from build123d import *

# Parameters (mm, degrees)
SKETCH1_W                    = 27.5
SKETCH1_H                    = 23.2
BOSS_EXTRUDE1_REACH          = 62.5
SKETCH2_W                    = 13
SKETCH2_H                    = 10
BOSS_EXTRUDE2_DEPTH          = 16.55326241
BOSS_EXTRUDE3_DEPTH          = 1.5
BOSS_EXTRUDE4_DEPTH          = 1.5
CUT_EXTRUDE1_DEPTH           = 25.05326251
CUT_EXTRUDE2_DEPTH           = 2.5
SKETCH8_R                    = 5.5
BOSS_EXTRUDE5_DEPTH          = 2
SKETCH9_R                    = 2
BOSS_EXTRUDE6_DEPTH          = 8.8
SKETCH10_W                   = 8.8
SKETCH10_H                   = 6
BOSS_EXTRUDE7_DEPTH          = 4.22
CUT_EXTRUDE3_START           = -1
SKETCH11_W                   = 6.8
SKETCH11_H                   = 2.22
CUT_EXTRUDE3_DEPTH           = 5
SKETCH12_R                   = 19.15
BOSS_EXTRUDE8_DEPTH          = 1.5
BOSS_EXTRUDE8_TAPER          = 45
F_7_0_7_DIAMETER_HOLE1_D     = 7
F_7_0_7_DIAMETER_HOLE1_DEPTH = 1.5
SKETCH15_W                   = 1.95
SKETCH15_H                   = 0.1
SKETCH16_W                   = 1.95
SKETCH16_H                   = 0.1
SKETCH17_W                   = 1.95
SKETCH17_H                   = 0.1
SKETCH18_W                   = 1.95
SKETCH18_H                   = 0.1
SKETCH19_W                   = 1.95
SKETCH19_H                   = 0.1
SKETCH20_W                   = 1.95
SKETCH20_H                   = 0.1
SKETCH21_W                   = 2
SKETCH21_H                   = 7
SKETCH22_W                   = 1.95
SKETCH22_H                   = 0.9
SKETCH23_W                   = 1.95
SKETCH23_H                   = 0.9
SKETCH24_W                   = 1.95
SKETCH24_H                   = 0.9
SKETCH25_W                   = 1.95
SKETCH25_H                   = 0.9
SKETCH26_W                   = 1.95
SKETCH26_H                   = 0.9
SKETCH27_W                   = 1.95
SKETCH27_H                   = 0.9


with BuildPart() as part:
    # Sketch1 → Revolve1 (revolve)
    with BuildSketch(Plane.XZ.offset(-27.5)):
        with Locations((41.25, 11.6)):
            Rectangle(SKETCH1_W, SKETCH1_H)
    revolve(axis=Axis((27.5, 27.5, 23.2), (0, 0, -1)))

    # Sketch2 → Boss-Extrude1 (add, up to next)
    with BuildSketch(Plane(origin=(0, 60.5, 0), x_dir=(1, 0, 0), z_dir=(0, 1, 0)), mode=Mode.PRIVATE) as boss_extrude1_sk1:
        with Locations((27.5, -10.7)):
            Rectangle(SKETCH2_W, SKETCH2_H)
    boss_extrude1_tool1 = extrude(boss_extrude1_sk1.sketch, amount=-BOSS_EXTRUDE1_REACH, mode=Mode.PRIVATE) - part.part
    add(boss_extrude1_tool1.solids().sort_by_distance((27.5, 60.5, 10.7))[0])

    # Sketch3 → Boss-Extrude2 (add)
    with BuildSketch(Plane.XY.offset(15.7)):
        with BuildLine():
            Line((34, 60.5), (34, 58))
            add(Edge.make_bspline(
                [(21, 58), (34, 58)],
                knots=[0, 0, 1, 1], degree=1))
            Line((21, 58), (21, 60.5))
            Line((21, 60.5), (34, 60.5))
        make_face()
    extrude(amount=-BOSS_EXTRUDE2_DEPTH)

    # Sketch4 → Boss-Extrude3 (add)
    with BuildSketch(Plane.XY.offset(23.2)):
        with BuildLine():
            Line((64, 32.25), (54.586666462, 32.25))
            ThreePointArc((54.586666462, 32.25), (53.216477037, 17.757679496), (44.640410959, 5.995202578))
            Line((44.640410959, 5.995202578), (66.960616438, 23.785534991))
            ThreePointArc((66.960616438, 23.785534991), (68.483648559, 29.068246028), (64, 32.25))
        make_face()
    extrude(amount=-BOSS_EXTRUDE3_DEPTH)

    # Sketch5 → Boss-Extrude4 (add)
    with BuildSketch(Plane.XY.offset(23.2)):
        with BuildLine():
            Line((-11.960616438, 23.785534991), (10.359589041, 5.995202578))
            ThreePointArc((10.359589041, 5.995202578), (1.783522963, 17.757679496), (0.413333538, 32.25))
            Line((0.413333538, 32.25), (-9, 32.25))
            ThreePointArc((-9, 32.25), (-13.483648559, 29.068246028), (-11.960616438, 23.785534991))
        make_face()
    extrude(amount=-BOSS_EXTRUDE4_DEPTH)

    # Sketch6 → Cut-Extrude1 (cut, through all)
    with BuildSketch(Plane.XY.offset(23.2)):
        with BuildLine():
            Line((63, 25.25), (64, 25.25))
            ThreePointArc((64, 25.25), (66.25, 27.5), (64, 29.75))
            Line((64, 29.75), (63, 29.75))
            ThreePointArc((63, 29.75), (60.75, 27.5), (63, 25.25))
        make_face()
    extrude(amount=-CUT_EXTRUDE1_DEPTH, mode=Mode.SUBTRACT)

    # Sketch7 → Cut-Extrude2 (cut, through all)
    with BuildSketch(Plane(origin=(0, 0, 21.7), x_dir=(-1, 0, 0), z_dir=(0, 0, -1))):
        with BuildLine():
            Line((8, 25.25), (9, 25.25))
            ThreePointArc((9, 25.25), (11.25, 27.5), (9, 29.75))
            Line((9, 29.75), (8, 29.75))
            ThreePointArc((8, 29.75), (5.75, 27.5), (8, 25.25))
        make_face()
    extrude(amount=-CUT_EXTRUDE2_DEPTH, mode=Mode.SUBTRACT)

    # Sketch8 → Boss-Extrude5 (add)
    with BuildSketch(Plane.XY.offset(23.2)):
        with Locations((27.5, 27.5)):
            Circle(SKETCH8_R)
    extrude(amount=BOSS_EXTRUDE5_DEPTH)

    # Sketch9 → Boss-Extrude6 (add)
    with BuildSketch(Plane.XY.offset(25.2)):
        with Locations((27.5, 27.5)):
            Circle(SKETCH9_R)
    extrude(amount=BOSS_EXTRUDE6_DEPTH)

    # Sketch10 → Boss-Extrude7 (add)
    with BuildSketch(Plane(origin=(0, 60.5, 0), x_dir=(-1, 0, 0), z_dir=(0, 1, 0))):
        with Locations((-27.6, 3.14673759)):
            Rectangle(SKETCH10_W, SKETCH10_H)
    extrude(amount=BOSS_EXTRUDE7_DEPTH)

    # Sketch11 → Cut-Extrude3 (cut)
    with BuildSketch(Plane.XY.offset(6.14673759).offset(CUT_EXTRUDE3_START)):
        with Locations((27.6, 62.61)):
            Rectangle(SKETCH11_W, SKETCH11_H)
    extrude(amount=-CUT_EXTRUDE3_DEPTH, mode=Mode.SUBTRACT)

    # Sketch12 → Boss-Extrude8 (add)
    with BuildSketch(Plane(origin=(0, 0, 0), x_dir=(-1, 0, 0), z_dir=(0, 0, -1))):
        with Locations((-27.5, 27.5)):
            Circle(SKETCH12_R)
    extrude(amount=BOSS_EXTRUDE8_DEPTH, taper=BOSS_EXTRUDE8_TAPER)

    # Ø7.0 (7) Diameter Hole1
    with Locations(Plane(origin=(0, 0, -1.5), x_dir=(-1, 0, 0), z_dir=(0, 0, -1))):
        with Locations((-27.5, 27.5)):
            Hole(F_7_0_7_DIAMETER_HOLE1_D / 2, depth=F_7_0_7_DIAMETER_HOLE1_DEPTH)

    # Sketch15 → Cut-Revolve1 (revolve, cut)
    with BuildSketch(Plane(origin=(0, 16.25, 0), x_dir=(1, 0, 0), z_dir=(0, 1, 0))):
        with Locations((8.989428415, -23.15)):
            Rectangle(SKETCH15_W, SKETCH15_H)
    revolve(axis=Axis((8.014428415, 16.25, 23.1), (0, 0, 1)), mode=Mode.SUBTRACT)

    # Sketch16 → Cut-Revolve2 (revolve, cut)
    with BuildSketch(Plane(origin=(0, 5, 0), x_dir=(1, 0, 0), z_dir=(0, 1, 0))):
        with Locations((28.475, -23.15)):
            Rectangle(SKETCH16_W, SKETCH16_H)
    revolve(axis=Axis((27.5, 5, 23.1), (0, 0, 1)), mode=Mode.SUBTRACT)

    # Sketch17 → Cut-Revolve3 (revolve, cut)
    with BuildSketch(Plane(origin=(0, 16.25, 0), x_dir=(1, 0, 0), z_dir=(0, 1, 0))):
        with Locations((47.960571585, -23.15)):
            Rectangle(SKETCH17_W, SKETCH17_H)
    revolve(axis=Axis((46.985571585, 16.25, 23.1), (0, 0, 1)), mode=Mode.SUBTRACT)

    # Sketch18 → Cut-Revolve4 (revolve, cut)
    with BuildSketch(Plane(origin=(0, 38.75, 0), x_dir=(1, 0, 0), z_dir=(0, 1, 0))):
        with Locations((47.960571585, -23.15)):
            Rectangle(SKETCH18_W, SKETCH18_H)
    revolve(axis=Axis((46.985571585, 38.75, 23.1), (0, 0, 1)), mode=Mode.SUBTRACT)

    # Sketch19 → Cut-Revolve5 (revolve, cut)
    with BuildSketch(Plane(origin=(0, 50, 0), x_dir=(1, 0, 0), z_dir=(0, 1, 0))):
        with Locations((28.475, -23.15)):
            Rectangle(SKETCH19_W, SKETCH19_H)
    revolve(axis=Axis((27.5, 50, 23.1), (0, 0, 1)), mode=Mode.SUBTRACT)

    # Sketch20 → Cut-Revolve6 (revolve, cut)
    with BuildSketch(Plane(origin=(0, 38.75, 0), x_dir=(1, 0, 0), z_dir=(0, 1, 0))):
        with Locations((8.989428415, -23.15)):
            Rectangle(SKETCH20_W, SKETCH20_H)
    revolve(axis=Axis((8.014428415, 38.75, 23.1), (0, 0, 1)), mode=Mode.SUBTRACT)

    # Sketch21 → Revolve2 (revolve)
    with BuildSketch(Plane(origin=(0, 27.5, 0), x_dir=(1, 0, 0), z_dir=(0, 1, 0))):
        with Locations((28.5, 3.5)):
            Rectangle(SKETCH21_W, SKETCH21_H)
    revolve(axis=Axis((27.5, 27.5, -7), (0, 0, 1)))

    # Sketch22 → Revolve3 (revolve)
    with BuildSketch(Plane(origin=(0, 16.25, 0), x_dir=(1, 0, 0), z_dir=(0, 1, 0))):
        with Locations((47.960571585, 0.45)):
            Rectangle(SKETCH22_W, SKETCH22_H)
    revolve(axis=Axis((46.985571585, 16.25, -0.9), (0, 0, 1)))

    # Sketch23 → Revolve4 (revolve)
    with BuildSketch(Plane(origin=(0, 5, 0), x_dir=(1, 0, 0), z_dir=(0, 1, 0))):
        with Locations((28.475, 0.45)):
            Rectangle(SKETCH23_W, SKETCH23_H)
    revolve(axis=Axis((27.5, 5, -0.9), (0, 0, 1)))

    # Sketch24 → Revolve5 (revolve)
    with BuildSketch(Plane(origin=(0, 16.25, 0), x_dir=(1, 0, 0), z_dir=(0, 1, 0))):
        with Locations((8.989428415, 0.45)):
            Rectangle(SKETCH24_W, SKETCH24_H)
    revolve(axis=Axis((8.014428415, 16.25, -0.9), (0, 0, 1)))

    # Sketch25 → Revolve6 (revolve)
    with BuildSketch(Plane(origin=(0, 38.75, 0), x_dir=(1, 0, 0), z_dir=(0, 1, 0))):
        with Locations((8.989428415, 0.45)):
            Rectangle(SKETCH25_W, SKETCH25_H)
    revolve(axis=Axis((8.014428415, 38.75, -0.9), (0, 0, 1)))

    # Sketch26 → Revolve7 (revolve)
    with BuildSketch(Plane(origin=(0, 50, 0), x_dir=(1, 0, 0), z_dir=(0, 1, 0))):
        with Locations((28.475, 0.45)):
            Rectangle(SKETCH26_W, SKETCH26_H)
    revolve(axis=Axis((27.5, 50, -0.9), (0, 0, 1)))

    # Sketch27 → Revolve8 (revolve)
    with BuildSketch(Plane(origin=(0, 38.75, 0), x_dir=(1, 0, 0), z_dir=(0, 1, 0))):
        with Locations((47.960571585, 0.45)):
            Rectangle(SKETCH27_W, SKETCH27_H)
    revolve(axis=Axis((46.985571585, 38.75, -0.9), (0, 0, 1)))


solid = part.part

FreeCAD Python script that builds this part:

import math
import FreeCAD as App
import Part
import Sketcher
Q = App.Units.Quantity

doc = App.newDocument("Part")
body = doc.addObject("PartDesign::Body", "Body")

sketch1 = body.newObject("Sketcher::SketchObject", "Sketch")
sketch1.AttachmentSupport = (doc.getObject("XZ_Plane"), [""])
sketch1.MapMode = "FlatFace"
sketch1.AttachmentOffset = App.Placement(App.Vector(0, 0, -27.5), App.Rotation())
sketch1.addGeometry(Part.LineSegment(App.Vector(28, 23, 0), App.Vector(28, 0, 0)), False)
sketch1.addGeometry(Part.LineSegment(App.Vector(28, 0, 0), App.Vector(55, 0, 0)), False)
sketch1.addGeometry(Part.LineSegment(App.Vector(55, 0, 0), App.Vector(55, 23, 0)), False)
sketch1.addGeometry(Part.LineSegment(App.Vector(55, 23, 0), App.Vector(28, 23, 0)), False)
sketch1.addGeometry(Part.LineSegment(App.Vector(28, 23, 0), App.Vector(28, 0, 0)), True)
sketch1.addConstraint(Sketcher.Constraint("Coincident", 0, 2, 1, 1))
sketch1.addConstraint(Sketcher.Constraint("Coincident", 1, 2, 2, 1))
sketch1.addConstraint(Sketcher.Constraint("Coincident", 2, 2, 3, 1))
sketch1.addConstraint(Sketcher.Constraint("Coincident", 3, 2, 0, 1))
sketch1.addConstraint(Sketcher.Constraint("Vertical", 0))
sketch1.addConstraint(Sketcher.Constraint("Horizontal", 1))
sketch1.addConstraint(Sketcher.Constraint("Vertical", 2))
sketch1.addConstraint(Sketcher.Constraint("Horizontal", 3))
sketch1.addConstraint(Sketcher.Constraint("Vertical", 4))
sketch1.addConstraint(Sketcher.Constraint("Coincident", 4, 1, 3, 2))
sketch1.addConstraint(Sketcher.Constraint("PointOnObject", 0, 2, -1))
sketch1.addConstraint(Sketcher.Constraint("PointOnObject", 4, 2, -1))
sketch1.addConstraint(Sketcher.Constraint("DistanceX", 1, 1, 1, 2, Q("27.5 mm")))
sketch1.addConstraint(Sketcher.Constraint("DistanceY", 0, 2, 0, 1, Q("23.2 mm")))
sketch1.addConstraint(Sketcher.Constraint("DistanceX", -1, 1, 1, 2, Q("55 mm")))
revolution = body.newObject("PartDesign::Revolution", "Revolution")
revolution.Profile = sketch1
revolution.ReferenceAxis = (sketch1, ["Axis0"])
revolution.Angle = 360

sketch2 = body.newObject("Sketcher::SketchObject", "Sketch001")
sketch2.AttachmentSupport = (doc.getObject("XZ_Plane"), [""])
sketch2.MapMode = "FlatFace"
sketch2.AttachmentOffset = App.Placement(App.Vector(0, 0, -60.5), App.Rotation())
sketch2.addGeometry(Part.LineSegment(App.Vector(21, 6, 0), App.Vector(21, 16, 0)), False)
sketch2.addGeometry(Part.LineSegment(App.Vector(21, 16, 0), App.Vector(34, 16, 0)), False)
sketch2.addGeometry(Part.LineSegment(App.Vector(34, 16, 0), App.Vector(34, 6, 0)), False)
sketch2.addGeometry(Part.LineSegment(App.Vector(34, 6, 0), App.Vector(21, 6, 0)), False)
sketch2.addConstraint(Sketcher.Constraint("Coincident", 0, 2, 1, 1))
sketch2.addConstraint(Sketcher.Constraint("Coincident", 1, 2, 2, 1))
sketch2.addConstraint(Sketcher.Constraint("Coincident", 2, 2, 3, 1))
sketch2.addConstraint(Sketcher.Constraint("Coincident", 3, 2, 0, 1))
sketch2.addConstraint(Sketcher.Constraint("Vertical", 0))
sketch2.addConstraint(Sketcher.Constraint("Horizontal", 1))
sketch2.addConstraint(Sketcher.Constraint("Vertical", 2))
sketch2.addConstraint(Sketcher.Constraint("Horizontal", 3))
sketch2.addConstraint(Sketcher.Constraint("DistanceX", 1, 1, 1, 2, Q("13 mm")))
sketch2.addConstraint(Sketcher.Constraint("DistanceY", 0, 1, 0, 2, Q("10 mm")))
sketch2.addConstraint(Sketcher.Constraint("DistanceX", -1, 1, 0, 2, Q("21 mm")))
sketch2.addConstraint(Sketcher.Constraint("DistanceY", -1, 1, 0, 2, Q("15.7 mm")))
pad1 = body.newObject("PartDesign::Pad", "Pad")
pad1.Profile = sketch2
pad1.Type = "UpToFirst"

sketch3 = body.newObject("Sketcher::SketchObject", "Sketch002")
sketch3.AttachmentSupport = (doc.getObject("XY_Plane"), [""])
sketch3.MapMode = "FlatFace"
sketch3.AttachmentOffset = App.Placement(App.Vector(0, 0, 15.7), App.Rotation())
sketch3.addGeometry(Part.LineSegment(App.Vector(34, 58, 0), App.Vector(34, 60.5, 0)), False)
sketch3.addGeometry(Part.LineSegment(App.Vector(34, 60.5, 0), App.Vector(21, 60.5, 0)), False)
sketch3.addGeometry(Part.LineSegment(App.Vector(21, 60.5, 0), App.Vector(21, 58, 0)), False)
sketch3.addGeometry(Part.BSplineCurve([App.Vector(21, 58, 0), App.Vector(34, 58, 0)], [2, 2], [0, 1], False, 1, [1, 1], False), False)
sketch3.addConstraint(Sketcher.Constraint("Block", 3))
sketch3.addConstraint(Sketcher.Constraint("Coincident", 0, 2, 1, 1))
sketch3.addConstraint(Sketcher.Constraint("Coincident", 1, 2, 2, 1))
sketch3.addConstraint(Sketcher.Constraint("Coincident", 2, 2, 3, 1))
sketch3.addConstraint(Sketcher.Constraint("Coincident", 3, 2, 0, 1))
sketch3.addConstraint(Sketcher.Constraint("Vertical", 0))
sketch3.addConstraint(Sketcher.Constraint("Horizontal", 1))
sketch3.addConstraint(Sketcher.Constraint("Vertical", 2))
sketch3.addConstraint(Sketcher.Constraint("DistanceY", 0, 1, 0, 2, Q("2.5 mm")))
pad2 = body.newObject("PartDesign::Pad", "Pad001")
pad2.Profile = sketch3
pad2.Length = 16.553262
pad2.Reversed = True

sketch4 = body.newObject("Sketcher::SketchObject", "Sketch003")
sketch4.AttachmentSupport = (doc.getObject("XY_Plane"), [""])
sketch4.MapMode = "FlatFace"
sketch4.AttachmentOffset = App.Placement(App.Vector(0, 0, 23.2), App.Rotation())
sketch4.addGeometry(Part.LineSegment(App.Vector(64, 32.2, 0), App.Vector(54.6, 32.2, 0)), False)
sketch4.addGeometry(Part.ArcOfCircle(Part.Circle(App.Vector(27.5, 27.5, 0), App.Vector(0, 0, 1), 27.5), math.radians(-51), math.radians(10)), False)
sketch4.addGeometry(Part.LineSegment(App.Vector(44.6, 6, 0), App.Vector(67, 23.8, 0)), False)
sketch4.addGeometry(Part.ArcOfCircle(Part.Circle(App.Vector(64, 27.5, 0), App.Vector(0, 0, 1), 4.7), math.radians(-51), math.radians(90)), False)
sketch4.addConstraint(Sketcher.Constraint("Coincident", 0, 2, 1, 2))
sketch4.addConstraint(Sketcher.Constraint("Tangent", 1, 1, 2, 1))
sketch4.addConstraint(Sketcher.Constraint("Tangent", 2, 2, 3, 1))
sketch4.addConstraint(Sketcher.Constraint("Tangent", 3, 2, 0, 1))
sketch4.addConstraint(Sketcher.Constraint("Horizontal", 0))
sketch4.addConstraint(Sketcher.Constraint("Horizontal", 1, 3, 3, 3))
sketch4.addConstraint(Sketcher.Constraint("Radius", 1, Q("27.5 mm")))
sketch4.addConstraint(Sketcher.Constraint("Radius", 3, Q("4.75 mm")))
sketch4.addConstraint(Sketcher.Constraint("DistanceX", -1, 1, 3, 3, Q("64 mm")))
sketch4.addConstraint(Sketcher.Constraint("DistanceX", -1, 1, 1, 3, Q("27.5 mm")))
sketch4.addConstraint(Sketcher.Constraint("DistanceY", -1, 1, 1, 3, Q("27.5 mm")))
pad3 = body.newObject("PartDesign::Pad", "Pad002")
pad3.Profile = sketch4
pad3.Length = 1.5
pad3.Reversed = True

sketch5 = body.newObject("Sketcher::SketchObject", "Sketch004")
sketch5.AttachmentSupport = (doc.getObject("XY_Plane"), [""])
sketch5.MapMode = "FlatFace"
sketch5.AttachmentOffset = App.Placement(App.Vector(0, 0, 23.2), App.Rotation())
sketch5.addGeometry(Part.LineSegment(App.Vector(-12, 23.8, 0), App.Vector(10.4, 6, 0)), False)
sketch5.addGeometry(Part.ArcOfCircle(Part.Circle(App.Vector(27.5, 27.5, 0), App.Vector(0, 0, 1), 27.5), math.radians(170), math.radians(231)), False)
sketch5.addGeometry(Part.LineSegment(App.Vector(0.4, 32.2, 0), App.Vector(-9, 32.2, 0)), False)
sketch5.addGeometry(Part.ArcOfCircle(Part.Circle(App.Vector(-9, 27.5, 0), App.Vector(0, 0, 1), 4.7), math.radians(90), math.radians(231)), False)
sketch5.addConstraint(Sketcher.Constraint("Tangent", 0, 2, 1, 2))
sketch5.addConstraint(Sketcher.Constraint("Coincident", 1, 1, 2, 1))
sketch5.addConstraint(Sketcher.Constraint("Tangent", 2, 2, 3, 1))
sketch5.addConstraint(Sketcher.Constraint("Tangent", 3, 2, 0, 1))
sketch5.addConstraint(Sketcher.Constraint("Horizontal", 2))
sketch5.addConstraint(Sketcher.Constraint("Horizontal", 1, 3, 3, 3))
sketch5.addConstraint(Sketcher.Constraint("Radius", 1, Q("27.5 mm")))
sketch5.addConstraint(Sketcher.Constraint("Radius", 3, Q("4.75 mm")))
sketch5.addConstraint(Sketcher.Constraint("DistanceX", 3, 3, -1, 1, Q("9 mm")))
sketch5.addConstraint(Sketcher.Constraint("DistanceX", -1, 1, 1, 3, Q("27.5 mm")))
sketch5.addConstraint(Sketcher.Constraint("DistanceY", -1, 1, 1, 3, Q("27.5 mm")))
pad4 = body.newObject("PartDesign::Pad", "Pad003")
pad4.Profile = sketch5
pad4.Length = 1.5
pad4.Reversed = True

sketch6 = body.newObject("Sketcher::SketchObject", "Sketch005")
sketch6.AttachmentSupport = (doc.getObject("XY_Plane"), [""])
sketch6.MapMode = "FlatFace"
sketch6.AttachmentOffset = App.Placement(App.Vector(0, 0, 23.2), App.Rotation())
sketch6.addGeometry(Part.LineSegment(App.Vector(63, 25.2, 0), App.Vector(64, 25.2, 0)), False)
sketch6.addGeometry(Part.ArcOfCircle(Part.Circle(App.Vector(64, 27.5, 0), App.Vector(0, 0, 1), 2.2), math.radians(-90), math.radians(90)), False)
sketch6.addGeometry(Part.LineSegment(App.Vector(64, 29.8, 0), App.Vector(63, 29.8, 0)), False)
sketch6.addGeometry(Part.ArcOfCircle(Part.Circle(App.Vector(63, 27.5, 0), App.Vector(0, 0, 1), 2.2), math.radians(90), math.radians(270)), False)
sketch6.addConstraint(Sketcher.Constraint("Tangent", 0, 2, 1, 1))
sketch6.addConstraint(Sketcher.Constraint("Tangent", 1, 2, 2, 1))
sketch6.addConstraint(Sketcher.Constraint("Tangent", 2, 2, 3, 1))
sketch6.addConstraint(Sketcher.Constraint("Tangent", 3, 2, 0, 1))
sketch6.addConstraint(Sketcher.Constraint("Horizontal", 0))
sketch6.addConstraint(Sketcher.Constraint("Horizontal", 2))
sketch6.addConstraint(Sketcher.Constraint("DistanceX", 0, 1, 0, 2, Q("1 mm")))
sketch6.addConstraint(Sketcher.Constraint("Radius", 1, Q("2.25 mm")))
sketch6.addConstraint(Sketcher.Constraint("DistanceX", -1, 1, 1, 3, Q("64 mm")))
sketch6.addConstraint(Sketcher.Constraint("DistanceY", -1, 1, 1, 3, Q("27.5 mm")))
pocket1 = body.newObject("PartDesign::Pocket", "Pocket")
pocket1.Profile = sketch6
pocket1.Type = "ThroughAll"

sketch7 = body.newObject("Sketcher::SketchObject", "Sketch006")
sketch7.AttachmentSupport = (doc.getObject("XY_Plane"), [""])
sketch7.MapMode = "FlatFace"
sketch7.AttachmentOffset = App.Placement(App.Vector(0, 0, 21.7), App.Rotation())
sketch7.addGeometry(Part.LineSegment(App.Vector(-8, 25.2, 0), App.Vector(-9, 25.2, 0)), False)
sketch7.addGeometry(Part.ArcOfCircle(Part.Circle(App.Vector(-9, 27.5, 0), App.Vector(0, 0, 1), 2.2), math.radians(90), math.radians(270)), False)
sketch7.addGeometry(Part.LineSegment(App.Vector(-9, 29.8, 0), App.Vector(-8, 29.8, 0)), False)
sketch7.addGeometry(Part.ArcOfCircle(Part.Circle(App.Vector(-8, 27.5, 0), App.Vector(0, 0, 1), 2.2), math.radians(-90), math.radians(90)), False)
sketch7.addConstraint(Sketcher.Constraint("Tangent", 0, 2, 1, 2))
sketch7.addConstraint(Sketcher.Constraint("Tangent", 1, 1, 2, 1))
sketch7.addConstraint(Sketcher.Constraint("Tangent", 2, 2, 3, 2))
sketch7.addConstraint(Sketcher.Constraint("Tangent", 3, 1, 0, 1))
sketch7.addConstraint(Sketcher.Constraint("Horizontal", 0))
sketch7.addConstraint(Sketcher.Constraint("Horizontal", 2))
sketch7.addConstraint(Sketcher.Constraint("DistanceX", 0, 2, 0, 1, Q("1 mm")))
sketch7.addConstraint(Sketcher.Constraint("Radius", 1, Q("2.25 mm")))
sketch7.addConstraint(Sketcher.Constraint("DistanceX", 1, 3, -1, 1, Q("9 mm")))
sketch7.addConstraint(Sketcher.Constraint("DistanceY", -1, 1, 1, 3, Q("27.5 mm")))
pocket2 = body.newObject("PartDesign::Pocket", "Pocket001")
pocket2.Profile = sketch7
pocket2.Type = "ThroughAll"
pocket2.Reversed = True

sketch8 = body.newObject("Sketcher::SketchObject", "Sketch007")
sketch8.AttachmentSupport = (doc.getObject("XY_Plane"), [""])
sketch8.MapMode = "FlatFace"
sketch8.AttachmentOffset = App.Placement(App.Vector(0, 0, 23.2), App.Rotation())
sketch8.addGeometry(Part.Circle(App.Vector(28, 28, 0), App.Vector(0, 0, 1), 6), False)
sketch8.addConstraint(Sketcher.Constraint("Diameter", 0, Q("11 mm")))
sketch8.addConstraint(Sketcher.Constraint("DistanceX", -1, 1, 0, 3, Q("27.5 mm")))
sketch8.addConstraint(Sketcher.Constraint("DistanceY", -1, 1, 0, 3, Q("27.5 mm")))
pad5 = body.newObject("PartDesign::Pad", "Pad004")
pad5.Profile = sketch8
pad5.Length = 2

sketch9 = body.newObject("Sketcher::SketchObject", "Sketch008")
sketch9.AttachmentSupport = (doc.getObject("XY_Plane"), [""])
sketch9.MapMode = "FlatFace"
sketch9.AttachmentOffset = App.Placement(App.Vector(0, 0, 25.2), App.Rotation())
sketch9.addGeometry(Part.Circle(App.Vector(27.5, 27.5, 0), App.Vector(0, 0, 1), 2), False)
sketch9.addConstraint(Sketcher.Constraint("Diameter", 0, Q("4 mm")))
sketch9.addConstraint(Sketcher.Constraint("DistanceX", -1, 1, 0, 3, Q("27.5 mm")))
sketch9.addConstraint(Sketcher.Constraint("DistanceY", -1, 1, 0, 3, Q("27.5 mm")))
pad6 = body.newObject("PartDesign::Pad", "Pad005")
pad6.Profile = sketch9
pad6.Length = 8.8

sketch10 = body.newObject("Sketcher::SketchObject", "Sketch009")
sketch10.AttachmentSupport = (doc.getObject("XZ_Plane"), [""])
sketch10.MapMode = "FlatFace"
sketch10.AttachmentOffset = App.Placement(App.Vector(0, 0, -60.5), App.Rotation())
sketch10.addGeometry(Part.LineSegment(App.Vector(32, 6, 0), App.Vector(32, 0, 0)), False)
sketch10.addGeometry(Part.LineSegment(App.Vector(32, 0, 0), App.Vector(23, 0, 0)), False)
sketch10.addGeometry(Part.LineSegment(App.Vector(23, 0, 0), App.Vector(23, 6, 0)), False)
sketch10.addGeometry(Part.LineSegment(App.Vector(23, 6, 0), App.Vector(32, 6, 0)), False)
sketch10.addConstraint(Sketcher.Constraint("Coincident", 0, 2, 1, 1))
sketch10.addConstraint(Sketcher.Constraint("Coincident", 1, 2, 2, 1))
sketch10.addConstraint(Sketcher.Constraint("Coincident", 2, 2, 3, 1))
sketch10.addConstraint(Sketcher.Constraint("Coincident", 3, 2, 0, 1))
sketch10.addConstraint(Sketcher.Constraint("Vertical", 0))
sketch10.addConstraint(Sketcher.Constraint("Horizontal", 1))
sketch10.addConstraint(Sketcher.Constraint("Vertical", 2))
sketch10.addConstraint(Sketcher.Constraint("Horizontal", 3))
sketch10.addConstraint(Sketcher.Constraint("DistanceY", 0, 2, 0, 1, Q("6 mm")))
sketch10.addConstraint(Sketcher.Constraint("DistanceX", 1, 2, 1, 1, Q("8.8 mm")))
sketch10.addConstraint(Sketcher.Constraint("DistanceX", -1, 1, 0, 2, Q("32 mm")))
sketch10.addConstraint(Sketcher.Constraint("DistanceY", -1, 1, 0, 2, Q("0.146738 mm")))
pad7 = body.newObject("PartDesign::Pad", "Pad006")
pad7.Profile = sketch10
pad7.Length = 4.22
pad7.Reversed = True

sketch11 = body.newObject("Sketcher::SketchObject", "Sketch010")
sketch11.AttachmentSupport = (doc.getObject("XY_Plane"), [""])
sketch11.MapMode = "FlatFace"
sketch11.AttachmentOffset = App.Placement(App.Vector(0, 0, 5.146738), App.Rotation())
sketch11.addGeometry(Part.LineSegment(App.Vector(24.2, 63.7, 0), App.Vector(24.2, 61.5, 0)), False)
sketch11.addGeometry(Part.LineSegment(App.Vector(24.2, 61.5, 0), App.Vector(31, 61.5, 0)), False)
sketch11.addGeometry(Part.LineSegment(App.Vector(31, 61.5, 0), App.Vector(31, 63.7, 0)), False)
sketch11.addGeometry(Part.LineSegment(App.Vector(31, 63.7, 0), App.Vector(24.2, 63.7, 0)), False)
sketch11.addConstraint(Sketcher.Constraint("Coincident", 0, 2, 1, 1))
sketch11.addConstraint(Sketcher.Constraint("Coincident", 1, 2, 2, 1))
sketch11.addConstraint(Sketcher.Constraint("Coincident", 2, 2, 3, 1))
sketch11.addConstraint(Sketcher.Constraint("Coincident", 3, 2, 0, 1))
sketch11.addConstraint(Sketcher.Constraint("Vertical", 0))
sketch11.addConstraint(Sketcher.Constraint("Horizontal", 1))
sketch11.addConstraint(Sketcher.Constraint("Vertical", 2))
sketch11.addConstraint(Sketcher.Constraint("Horizontal", 3))
sketch11.addConstraint(Sketcher.Constraint("DistanceX", 1, 1, 1, 2, Q("6.8 mm")))
sketch11.addConstraint(Sketcher.Constraint("DistanceX", -1, 1, 1, 2, Q("31 mm")))
sketch11.addConstraint(Sketcher.Constraint("DistanceY", 0, 2, 0, 1, Q("2.22 mm")))
sketch11.addConstraint(Sketcher.Constraint("DistanceY", -1, 1, 0, 2, Q("61.5 mm")))
pocket3 = body.newObject("PartDesign::Pocket", "Pocket002")
pocket3.Profile = sketch11
pocket3.Length = 5

sketch12 = body.newObject("Sketcher::SketchObject", "Sketch011")
sketch12.AttachmentSupport = (doc.getObject("XY_Plane"), [""])
sketch12.MapMode = "FlatFace"
sketch12.addGeometry(Part.Circle(App.Vector(28, 28, 0), App.Vector(0, 0, 1), 19), False)
sketch12.addConstraint(Sketcher.Constraint("Diameter", 0, Q("38.3 mm")))
sketch12.addConstraint(Sketcher.Constraint("DistanceX", -1, 1, 0, 3, Q("27.5 mm")))
sketch12.addConstraint(Sketcher.Constraint("DistanceY", -1, 1, 0, 3, Q("27.5 mm")))
pad8 = body.newObject("PartDesign::Pad", "Pad007")
pad8.Profile = sketch12
pad8.Length = 1.5
pad8.Reversed = True
pad8.TaperAngle = -45

sketch13 = body.newObject("Sketcher::SketchObject", "Sketch012")
sketch13.AttachmentSupport = (doc.getObject("XY_Plane"), [""])
sketch13.MapMode = "FlatFace"
sketch13.AttachmentOffset = App.Placement(App.Vector(0, 0, -1.5), App.Rotation())
sketch13.addGeometry(Part.Circle(App.Vector(27.5, 27.5, 0), App.Vector(0, 0, 1), 3.5), False)
sketch13.addConstraint(Sketcher.Constraint("Diameter", 0, Q("7 mm")))
sketch13.addConstraint(Sketcher.Constraint("DistanceX", -1, 1, 0, 3, Q("27.5 mm")))
sketch13.addConstraint(Sketcher.Constraint("DistanceY", -1, 1, 0, 3, Q("27.5 mm")))
doc.recompute()
hole = body.newObject("PartDesign::Hole", "Hole")
hole.Profile = sketch13
hole.ThreadType = "None"
hole.Diameter = 7
hole.DepthType = "Dimension"
hole.Depth = 1.5
hole.DrillPoint = "Flat"
hole.Reversed = True

sketch14 = body.newObject("Sketcher::SketchObject", "Sketch013")
sketch14.AttachmentSupport = (doc.getObject("XZ_Plane"), [""])
sketch14.MapMode = "FlatFace"
sketch14.AttachmentOffset = App.Placement(App.Vector(0, 0, -16.25), App.Rotation())
sketch14.addGeometry(Part.LineSegment(App.Vector(8.01, 23.1, 0), App.Vector(8.01, 23.2, 0)), False)
sketch14.addGeometry(Part.LineSegment(App.Vector(8.01, 23.2, 0), App.Vector(9.96, 23.2, 0)), False)
sketch14.addGeometry(Part.LineSegment(App.Vector(9.96, 23.2, 0), App.Vector(9.96, 23.1, 0)), False)
sketch14.addGeometry(Part.LineSegment(App.Vector(9.96, 23.1, 0), App.Vector(8.01, 23.1, 0)), False)
sketch14.addGeometry(Part.LineSegment(App.Vector(8.01, 23.1, 0), App.Vector(8.01, 23.2, 0)), True)
sketch14.addConstraint(Sketcher.Constraint("Coincident", 0, 2, 1, 1))
sketch14.addConstraint(Sketcher.Constraint("Coincident", 1, 2, 2, 1))
sketch14.addConstraint(Sketcher.Constraint("Coincident", 2, 2, 3, 1))
sketch14.addConstraint(Sketcher.Constraint("Coincident", 3, 2, 0, 1))
sketch14.addConstraint(Sketcher.Constraint("Vertical", 0))
sketch14.addConstraint(Sketcher.Constraint("Horizontal", 1))
sketch14.addConstraint(Sketcher.Constraint("Vertical", 2))
sketch14.addConstraint(Sketcher.Constraint("Horizontal", 3))
sketch14.addConstraint(Sketcher.Constraint("Vertical", 4))
sketch14.addConstraint(Sketcher.Constraint("Coincident", 4, 1, 3, 2))
sketch14.addConstraint(Sketcher.Constraint("Horizontal", 1, 2, 4, 2))
sketch14.addConstraint(Sketcher.Constraint("DistanceY", 0, 1, 0, 2, Q("0.1 mm")))
sketch14.addConstraint(Sketcher.Constraint("DistanceX", 1, 1, 1, 2, Q("1.95 mm")))
sketch14.addConstraint(Sketcher.Constraint("DistanceY", -1, 1, 0, 2, Q("23.2 mm")))
sketch14.addConstraint(Sketcher.Constraint("DistanceX", -1, 1, 0, 2, Q("8.014428 mm")))
groove = body.newObject("PartDesign::Groove", "Groove")
groove.Profile = sketch14
groove.ReferenceAxis = (sketch14, ["Axis0"])
groove.Angle = 360

sketch15 = body.newObject("Sketcher::SketchObject", "Sketch014")
sketch15.AttachmentSupport = (doc.getObject("XZ_Plane"), [""])
sketch15.MapMode = "FlatFace"
sketch15.AttachmentOffset = App.Placement(App.Vector(0, 0, -5), App.Rotation())
sketch15.addGeometry(Part.LineSegment(App.Vector(27.5, 23.1, 0), App.Vector(27.5, 23.2, 0)), False)
sketch15.addGeometry(Part.LineSegment(App.Vector(27.5, 23.2, 0), App.Vector(29.45, 23.2, 0)), False)
sketch15.addGeometry(Part.LineSegment(App.Vector(29.45, 23.2, 0), App.Vector(29.45, 23.1, 0)), False)
sketch15.addGeometry(Part.LineSegment(App.Vector(29.45, 23.1, 0), App.Vector(27.5, 23.1, 0)), False)
sketch15.addGeometry(Part.LineSegment(App.Vector(27.5, 23.1, 0), App.Vector(27.5, 23.2, 0)), True)
sketch15.addConstraint(Sketcher.Constraint("Coincident", 0, 2, 1, 1))
sketch15.addConstraint(Sketcher.Constraint("Coincident", 1, 2, 2, 1))
sketch15.addConstraint(Sketcher.Constraint("Coincident", 2, 2, 3, 1))
sketch15.addConstraint(Sketcher.Constraint("Coincident", 3, 2, 0, 1))
sketch15.addConstraint(Sketcher.Constraint("Vertical", 0))
sketch15.addConstraint(Sketcher.Constraint("Horizontal", 1))
sketch15.addConstraint(Sketcher.Constraint("Vertical", 2))
sketch15.addConstraint(Sketcher.Constraint("Horizontal", 3))
sketch15.addConstraint(Sketcher.Constraint("Vertical", 4))
sketch15.addConstraint(Sketcher.Constraint("Coincident", 4, 1, 3, 2))
sketch15.addConstraint(Sketcher.Constraint("Horizontal", 1, 2, 4, 2))
sketch15.addConstraint(Sketcher.Constraint("DistanceY", 0, 1, 0, 2, Q("0.1 mm")))
sketch15.addConstraint(Sketcher.Constraint("DistanceX", 1, 1, 1, 2, Q("1.95 mm")))
sketch15.addConstraint(Sketcher.Constraint("DistanceX", -1, 1, 0, 2, Q("27.5 mm")))
sketch15.addConstraint(Sketcher.Constraint("DistanceY", -1, 1, 0, 2, Q("23.2 mm")))
groove2 = body.newObject("PartDesign::Groove", "Groove001")
groove2.Profile = sketch15
groove2.ReferenceAxis = (sketch15, ["Axis0"])
groove2.Angle = 360

sketch16 = body.newObject("Sketcher::SketchObject", "Sketch015")
sketch16.AttachmentSupport = (doc.getObject("XZ_Plane"), [""])
sketch16.MapMode = "FlatFace"
sketch16.AttachmentOffset = App.Placement(App.Vector(0, 0, -16.25), App.Rotation())
sketch16.addGeometry(Part.LineSegment(App.Vector(46.99, 23.1, 0), App.Vector(46.99, 23.2, 0)), False)
sketch16.addGeometry(Part.LineSegment(App.Vector(46.99, 23.2, 0), App.Vector(48.94, 23.2, 0)), False)
sketch16.addGeometry(Part.LineSegment(App.Vector(48.94, 23.2, 0), App.Vector(48.94, 23.1, 0)), False)
sketch16.addGeometry(Part.LineSegment(App.Vector(48.94, 23.1, 0), App.Vector(46.99, 23.1, 0)), False)
sketch16.addGeometry(Part.LineSegment(App.Vector(46.99, 23.1, 0), App.Vector(46.99, 23.2, 0)), True)
sketch16.addConstraint(Sketcher.Constraint("Coincident", 0, 2, 1, 1))
sketch16.addConstraint(Sketcher.Constraint("Coincident", 1, 2, 2, 1))
sketch16.addConstraint(Sketcher.Constraint("Coincident", 2, 2, 3, 1))
sketch16.addConstraint(Sketcher.Constraint("Coincident", 3, 2, 0, 1))
sketch16.addConstraint(Sketcher.Constraint("Vertical", 0))
sketch16.addConstraint(Sketcher.Constraint("Horizontal", 1))
sketch16.addConstraint(Sketcher.Constraint("Vertical", 2))
sketch16.addConstraint(Sketcher.Constraint("Horizontal", 3))
sketch16.addConstraint(Sketcher.Constraint("Vertical", 4))
sketch16.addConstraint(Sketcher.Constraint("Coincident", 4, 1, 3, 2))
sketch16.addConstraint(Sketcher.Constraint("Horizontal", 1, 2, 4, 2))
sketch16.addConstraint(Sketcher.Constraint("DistanceY", 0, 1, 0, 2, Q("0.1 mm")))
sketch16.addConstraint(Sketcher.Constraint("DistanceX", 1, 1, 1, 2, Q("1.95 mm")))
sketch16.addConstraint(Sketcher.Constraint("DistanceY", -1, 1, 0, 2, Q("23.2 mm")))
sketch16.addConstraint(Sketcher.Constraint("DistanceX", -1, 1, 0, 2, Q("46.985572 mm")))
groove3 = body.newObject("PartDesign::Groove", "Groove002")
groove3.Profile = sketch16
groove3.ReferenceAxis = (sketch16, ["Axis0"])
groove3.Angle = 360

sketch17 = body.newObject("Sketcher::SketchObject", "Sketch016")
sketch17.AttachmentSupport = (doc.getObject("XZ_Plane"), [""])
sketch17.MapMode = "FlatFace"
sketch17.AttachmentOffset = App.Placement(App.Vector(0, 0, -38.75), App.Rotation())
sketch17.addGeometry(Part.LineSegment(App.Vector(46.99, 23.1, 0), App.Vector(46.99, 23.2, 0)), False)
sketch17.addGeometry(Part.LineSegment(App.Vector(46.99, 23.2, 0), App.Vector(48.94, 23.2, 0)), False)
sketch17.addGeometry(Part.LineSegment(App.Vector(48.94, 23.2, 0), App.Vector(48.94, 23.1, 0)), False)
sketch17.addGeometry(Part.LineSegment(App.Vector(48.94, 23.1, 0), App.Vector(46.99, 23.1, 0)), False)
sketch17.addGeometry(Part.LineSegment(App.Vector(46.99, 23.1, 0), App.Vector(46.99, 23.2, 0)), True)
sketch17.addConstraint(Sketcher.Constraint("Coincident", 0, 2, 1, 1))
sketch17.addConstraint(Sketcher.Constraint("Coincident", 1, 2, 2, 1))
sketch17.addConstraint(Sketcher.Constraint("Coincident", 2, 2, 3, 1))
sketch17.addConstraint(Sketcher.Constraint("Coincident", 3, 2, 0, 1))
sketch17.addConstraint(Sketcher.Constraint("Vertical", 0))
sketch17.addConstraint(Sketcher.Constraint("Horizontal", 1))
sketch17.addConstraint(Sketcher.Constraint("Vertical", 2))
sketch17.addConstraint(Sketcher.Constraint("Horizontal", 3))
sketch17.addConstraint(Sketcher.Constraint("Vertical", 4))
sketch17.addConstraint(Sketcher.Constraint("Coincident", 4, 1, 3, 2))
sketch17.addConstraint(Sketcher.Constraint("Horizontal", 1, 2, 4, 2))
sketch17.addConstraint(Sketcher.Constraint("DistanceY", 0, 1, 0, 2, Q("0.1 mm")))
sketch17.addConstraint(Sketcher.Constraint("DistanceX", 1, 1, 1, 2, Q("1.95 mm")))
sketch17.addConstraint(Sketcher.Constraint("DistanceY", -1, 1, 0, 2, Q("23.2 mm")))
sketch17.addConstraint(Sketcher.Constraint("DistanceX", -1, 1, 0, 2, Q("46.985572 mm")))
groove4 = body.newObject("PartDesign::Groove", "Groove003")
groove4.Profile = sketch17
groove4.ReferenceAxis = (sketch17, ["Axis0"])
groove4.Angle = 360

sketch18 = body.newObject("Sketcher::SketchObject", "Sketch017")
sketch18.AttachmentSupport = (doc.getObject("XZ_Plane"), [""])
sketch18.MapMode = "FlatFace"
sketch18.AttachmentOffset = App.Placement(App.Vector(0, 0, -50), App.Rotation())
sketch18.addGeometry(Part.LineSegment(App.Vector(27.5, 23.1, 0), App.Vector(27.5, 23.2, 0)), False)
sketch18.addGeometry(Part.LineSegment(App.Vector(27.5, 23.2, 0), App.Vector(29.45, 23.2, 0)), False)
sketch18.addGeometry(Part.LineSegment(App.Vector(29.45, 23.2, 0), App.Vector(29.45, 23.1, 0)), False)
sketch18.addGeometry(Part.LineSegment(App.Vector(29.45, 23.1, 0), App.Vector(27.5, 23.1, 0)), False)
sketch18.addGeometry(Part.LineSegment(App.Vector(27.5, 23.1, 0), App.Vector(27.5, 23.2, 0)), True)
sketch18.addConstraint(Sketcher.Constraint("Coincident", 0, 2, 1, 1))
sketch18.addConstraint(Sketcher.Constraint("Coincident", 1, 2, 2, 1))
sketch18.addConstraint(Sketcher.Constraint("Coincident", 2, 2, 3, 1))
sketch18.addConstraint(Sketcher.Constraint("Coincident", 3, 2, 0, 1))
sketch18.addConstraint(Sketcher.Constraint("Vertical", 0))
sketch18.addConstraint(Sketcher.Constraint("Horizontal", 1))
sketch18.addConstraint(Sketcher.Constraint("Vertical", 2))
sketch18.addConstraint(Sketcher.Constraint("Horizontal", 3))
sketch18.addConstraint(Sketcher.Constraint("Vertical", 4))
sketch18.addConstraint(Sketcher.Constraint("Coincident", 4, 1, 3, 2))
sketch18.addConstraint(Sketcher.Constraint("Horizontal", 1, 2, 4, 2))
sketch18.addConstraint(Sketcher.Constraint("DistanceY", 0, 1, 0, 2, Q("0.1 mm")))
sketch18.addConstraint(Sketcher.Constraint("DistanceX", 1, 1, 1, 2, Q("1.95 mm")))
sketch18.addConstraint(Sketcher.Constraint("DistanceX", -1, 1, 0, 2, Q("27.5 mm")))
sketch18.addConstraint(Sketcher.Constraint("DistanceY", -1, 1, 0, 2, Q("23.2 mm")))
groove5 = body.newObject("PartDesign::Groove", "Groove004")
groove5.Profile = sketch18
groove5.ReferenceAxis = (sketch18, ["Axis0"])
groove5.Angle = 360

sketch19 = body.newObject("Sketcher::SketchObject", "Sketch018")
sketch19.AttachmentSupport = (doc.getObject("XZ_Plane"), [""])
sketch19.MapMode = "FlatFace"
sketch19.AttachmentOffset = App.Placement(App.Vector(0, 0, -38.75), App.Rotation())
sketch19.addGeometry(Part.LineSegment(App.Vector(8.01, 23.1, 0), App.Vector(8.01, 23.2, 0)), False)
sketch19.addGeometry(Part.LineSegment(App.Vector(8.01, 23.2, 0), App.Vector(9.96, 23.2, 0)), False)
sketch19.addGeometry(Part.LineSegment(App.Vector(9.96, 23.2, 0), App.Vector(9.96, 23.1, 0)), False)
sketch19.addGeometry(Part.LineSegment(App.Vector(9.96, 23.1, 0), App.Vector(8.01, 23.1, 0)), False)
sketch19.addGeometry(Part.LineSegment(App.Vector(8.01, 23.1, 0), App.Vector(8.01, 23.2, 0)), True)
sketch19.addConstraint(Sketcher.Constraint("Coincident", 0, 2, 1, 1))
sketch19.addConstraint(Sketcher.Constraint("Coincident", 1, 2, 2, 1))
sketch19.addConstraint(Sketcher.Constraint("Coincident", 2, 2, 3, 1))
sketch19.addConstraint(Sketcher.Constraint("Coincident", 3, 2, 0, 1))
sketch19.addConstraint(Sketcher.Constraint("Vertical", 0))
sketch19.addConstraint(Sketcher.Constraint("Horizontal", 1))
sketch19.addConstraint(Sketcher.Constraint("Vertical", 2))
sketch19.addConstraint(Sketcher.Constraint("Horizontal", 3))
sketch19.addConstraint(Sketcher.Constraint("Vertical", 4))
sketch19.addConstraint(Sketcher.Constraint("Coincident", 4, 1, 3, 2))
sketch19.addConstraint(Sketcher.Constraint("Horizontal", 1, 2, 4, 2))
sketch19.addConstraint(Sketcher.Constraint("DistanceY", 0, 1, 0, 2, Q("0.1 mm")))
sketch19.addConstraint(Sketcher.Constraint("DistanceX", 1, 1, 1, 2, Q("1.95 mm")))
sketch19.addConstraint(Sketcher.Constraint("DistanceY", -1, 1, 0, 2, Q("23.2 mm")))
sketch19.addConstraint(Sketcher.Constraint("DistanceX", -1, 1, 0, 2, Q("8.014428 mm")))
groove6 = body.newObject("PartDesign::Groove", "Groove005")
groove6.Profile = sketch19
groove6.ReferenceAxis = (sketch19, ["Axis0"])
groove6.Angle = 360

sketch20 = body.newObject("Sketcher::SketchObject", "Sketch019")
sketch20.AttachmentSupport = (doc.getObject("XZ_Plane"), [""])
sketch20.MapMode = "FlatFace"
sketch20.AttachmentOffset = App.Placement(App.Vector(0, 0, -27.5), App.Rotation())
sketch20.addGeometry(Part.LineSegment(App.Vector(27.5, -7, 0), App.Vector(27.5, 0, 0)), False)
sketch20.addGeometry(Part.LineSegment(App.Vector(27.5, 0, 0), App.Vector(29.5, 0, 0)), False)
sketch20.addGeometry(Part.LineSegment(App.Vector(29.5, 0, 0), App.Vector(29.5, -7, 0)), False)
sketch20.addGeometry(Part.LineSegment(App.Vector(29.5, -7, 0), App.Vector(27.5, -7, 0)), False)
sketch20.addGeometry(Part.LineSegment(App.Vector(27.5, -7, 0), App.Vector(27.5, 0, 0)), True)
sketch20.addConstraint(Sketcher.Constraint("Coincident", 0, 2, 1, 1))
sketch20.addConstraint(Sketcher.Constraint("Coincident", 1, 2, 2, 1))
sketch20.addConstraint(Sketcher.Constraint("Coincident", 2, 2, 3, 1))
sketch20.addConstraint(Sketcher.Constraint("Coincident", 3, 2, 0, 1))
sketch20.addConstraint(Sketcher.Constraint("Vertical", 0))
sketch20.addConstraint(Sketcher.Constraint("Horizontal", 1))
sketch20.addConstraint(Sketcher.Constraint("Vertical", 2))
sketch20.addConstraint(Sketcher.Constraint("Horizontal", 3))
sketch20.addConstraint(Sketcher.Constraint("Vertical", 4))
sketch20.addConstraint(Sketcher.Constraint("Coincident", 4, 1, 3, 2))
sketch20.addConstraint(Sketcher.Constraint("PointOnObject", 0, 2, -1))
sketch20.addConstraint(Sketcher.Constraint("PointOnObject", 4, 2, -1))
sketch20.addConstraint(Sketcher.Constraint("DistanceX", 1, 1, 1, 2, Q("2 mm")))
sketch20.addConstraint(Sketcher.Constraint("DistanceY", 0, 1, 0, 2, Q("7 mm")))
sketch20.addConstraint(Sketcher.Constraint("DistanceX", -1, 1, 0, 2, Q("27.5 mm")))
revolution2 = body.newObject("PartDesign::Revolution", "Revolution001")
revolution2.Profile = sketch20
revolution2.ReferenceAxis = (sketch20, ["Axis0"])
revolution2.Angle = 360

sketch21 = body.newObject("Sketcher::SketchObject", "Sketch020")
sketch21.AttachmentSupport = (doc.getObject("XZ_Plane"), [""])
sketch21.MapMode = "FlatFace"
sketch21.AttachmentOffset = App.Placement(App.Vector(0, 0, -16.25), App.Rotation())
sketch21.addGeometry(Part.LineSegment(App.Vector(47, -0.9, 0), App.Vector(47, 0, 0)), False)
sketch21.addGeometry(Part.LineSegment(App.Vector(47, 0, 0), App.Vector(48.9, 0, 0)), False)
sketch21.addGeometry(Part.LineSegment(App.Vector(48.9, 0, 0), App.Vector(48.9, -0.9, 0)), False)
sketch21.addGeometry(Part.LineSegment(App.Vector(48.9, -0.9, 0), App.Vector(47, -0.9, 0)), False)
sketch21.addGeometry(Part.LineSegment(App.Vector(47, -0.9, 0), App.Vector(47, 0, 0)), True)
sketch21.addConstraint(Sketcher.Constraint("Coincident", 0, 2, 1, 1))
sketch21.addConstraint(Sketcher.Constraint("Coincident", 1, 2, 2, 1))
sketch21.addConstraint(Sketcher.Constraint("Coincident", 2, 2, 3, 1))
sketch21.addConstraint(Sketcher.Constraint("Coincident", 3, 2, 0, 1))
sketch21.addConstraint(Sketcher.Constraint("Vertical", 0))
sketch21.addConstraint(Sketcher.Constraint("Horizontal", 1))
sketch21.addConstraint(Sketcher.Constraint("Vertical", 2))
sketch21.addConstraint(Sketcher.Constraint("Horizontal", 3))
sketch21.addConstraint(Sketcher.Constraint("Vertical", 4))
sketch21.addConstraint(Sketcher.Constraint("Coincident", 4, 1, 3, 2))
sketch21.addConstraint(Sketcher.Constraint("PointOnObject", 0, 2, -1))
sketch21.addConstraint(Sketcher.Constraint("PointOnObject", 4, 2, -1))
sketch21.addConstraint(Sketcher.Constraint("DistanceY", 0, 1, 0, 2, Q("0.9 mm")))
sketch21.addConstraint(Sketcher.Constraint("DistanceX", 1, 1, 1, 2, Q("1.95 mm")))
sketch21.addConstraint(Sketcher.Constraint("DistanceX", -1, 1, 0, 2, Q("46.985572 mm")))
revolution3 = body.newObject("PartDesign::Revolution", "Revolution002")
revolution3.Profile = sketch21
revolution3.ReferenceAxis = (sketch21, ["Axis0"])
revolution3.Angle = 360

sketch22 = body.newObject("Sketcher::SketchObject", "Sketch021")
sketch22.AttachmentSupport = (doc.getObject("XZ_Plane"), [""])
sketch22.MapMode = "FlatFace"
sketch22.AttachmentOffset = App.Placement(App.Vector(0, 0, -5), App.Rotation())
sketch22.addGeometry(Part.LineSegment(App.Vector(27.5, -0.9, 0), App.Vector(27.5, 0, 0)), False)
sketch22.addGeometry(Part.LineSegment(App.Vector(27.5, 0, 0), App.Vector(29.4, 0, 0)), False)
sketch22.addGeometry(Part.LineSegment(App.Vector(29.4, 0, 0), App.Vector(29.4, -0.9, 0)), False)
sketch22.addGeometry(Part.LineSegment(App.Vector(29.4, -0.9, 0), App.Vector(27.5, -0.9, 0)), False)
sketch22.addGeometry(Part.LineSegment(App.Vector(27.5, -0.9, 0), App.Vector(27.5, 0, 0)), True)
sketch22.addConstraint(Sketcher.Constraint("Coincident", 0, 2, 1, 1))
sketch22.addConstraint(Sketcher.Constraint("Coincident", 1, 2, 2, 1))
sketch22.addConstraint(Sketcher.Constraint("Coincident", 2, 2, 3, 1))
sketch22.addConstraint(Sketcher.Constraint("Coincident", 3, 2, 0, 1))
sketch22.addConstraint(Sketcher.Constraint("Vertical", 0))
sketch22.addConstraint(Sketcher.Constraint("Horizontal", 1))
sketch22.addConstraint(Sketcher.Constraint("Vertical", 2))
sketch22.addConstraint(Sketcher.Constraint("Horizontal", 3))
sketch22.addConstraint(Sketcher.Constraint("Vertical", 4))
sketch22.addConstraint(Sketcher.Constraint("Coincident", 4, 1, 3, 2))
sketch22.addConstraint(Sketcher.Constraint("PointOnObject", 0, 2, -1))
sketch22.addConstraint(Sketcher.Constraint("PointOnObject", 4, 2, -1))
sketch22.addConstraint(Sketcher.Constraint("DistanceY", 0, 1, 0, 2, Q("0.9 mm")))
sketch22.addConstraint(Sketcher.Constraint("DistanceX", 1, 1, 1, 2, Q("1.95 mm")))
sketch22.addConstraint(Sketcher.Constraint("DistanceX", -1, 1, 0, 2, Q("27.5 mm")))
revolution4 = body.newObject("PartDesign::Revolution", "Revolution003")
revolution4.Profile = sketch22
revolution4.ReferenceAxis = (sketch22, ["Axis0"])
revolution4.Angle = 360

sketch23 = body.newObject("Sketcher::SketchObject", "Sketch022")
sketch23.AttachmentSupport = (doc.getObject("XZ_Plane"), [""])
sketch23.MapMode = "FlatFace"
sketch23.AttachmentOffset = App.Placement(App.Vector(0, 0, -16.25), App.Rotation())
sketch23.addGeometry(Part.LineSegment(App.Vector(8, -0.9, 0), App.Vector(8, 0, 0)), False)
sketch23.addGeometry(Part.LineSegment(App.Vector(8, 0, 0), App.Vector(10, 0, 0)), False)
sketch23.addGeometry(Part.LineSegment(App.Vector(10, 0, 0), App.Vector(10, -0.9, 0)), False)
sketch23.addGeometry(Part.LineSegment(App.Vector(10, -0.9, 0), App.Vector(8, -0.9, 0)), False)
sketch23.addGeometry(Part.LineSegment(App.Vector(8, -0.9, 0), App.Vector(8, 0, 0)), True)
sketch23.addConstraint(Sketcher.Constraint("Coincident", 0, 2, 1, 1))
sketch23.addConstraint(Sketcher.Constraint("Coincident", 1, 2, 2, 1))
sketch23.addConstraint(Sketcher.Constraint("Coincident", 2, 2, 3, 1))
sketch23.addConstraint(Sketcher.Constraint("Coincident", 3, 2, 0, 1))
sketch23.addConstraint(Sketcher.Constraint("Vertical", 0))
sketch23.addConstraint(Sketcher.Constraint("Horizontal", 1))
sketch23.addConstraint(Sketcher.Constraint("Vertical", 2))
sketch23.addConstraint(Sketcher.Constraint("Horizontal", 3))
sketch23.addConstraint(Sketcher.Constraint("Vertical", 4))
sketch23.addConstraint(Sketcher.Constraint("Coincident", 4, 1, 3, 2))
sketch23.addConstraint(Sketcher.Constraint("PointOnObject", 0, 2, -1))
sketch23.addConstraint(Sketcher.Constraint("PointOnObject", 4, 2, -1))
sketch23.addConstraint(Sketcher.Constraint("DistanceY", 0, 1, 0, 2, Q("0.9 mm")))
sketch23.addConstraint(Sketcher.Constraint("DistanceX", 1, 1, 1, 2, Q("1.95 mm")))
sketch23.addConstraint(Sketcher.Constraint("DistanceX", -1, 1, 0, 2, Q("8.014428 mm")))
revolution5 = body.newObject("PartDesign::Revolution", "Revolution004")
revolution5.Profile = sketch23
revolution5.ReferenceAxis = (sketch23, ["Axis0"])
revolution5.Angle = 360

sketch24 = body.newObject("Sketcher::SketchObject", "Sketch023")
sketch24.AttachmentSupport = (doc.getObject("XZ_Plane"), [""])
sketch24.MapMode = "FlatFace"
sketch24.AttachmentOffset = App.Placement(App.Vector(0, 0, -38.75), App.Rotation())
sketch24.addGeometry(Part.LineSegment(App.Vector(8, -0.9, 0), App.Vector(8, 0, 0)), False)
sketch24.addGeometry(Part.LineSegment(App.Vector(8, 0, 0), App.Vector(10, 0, 0)), False)
sketch24.addGeometry(Part.LineSegment(App.Vector(10, 0, 0), App.Vector(10, -0.9, 0)), False)
sketch24.addGeometry(Part.LineSegment(App.Vector(10, -0.9, 0), App.Vector(8, -0.9, 0)), False)
sketch24.addGeometry(Part.LineSegment(App.Vector(8, -0.9, 0), App.Vector(8, 0, 0)), True)
sketch24.addConstraint(Sketcher.Constraint("Coincident", 0, 2, 1, 1))
sketch24.addConstraint(Sketcher.Constraint("Coincident", 1, 2, 2, 1))
sketch24.addConstraint(Sketcher.Constraint("Coincident", 2, 2, 3, 1))
sketch24.addConstraint(Sketcher.Constraint("Coincident", 3, 2, 0, 1))
sketch24.addConstraint(Sketcher.Constraint("Vertical", 0))
sketch24.addConstraint(Sketcher.Constraint("Horizontal", 1))
sketch24.addConstraint(Sketcher.Constraint("Vertical", 2))
sketch24.addConstraint(Sketcher.Constraint("Horizontal", 3))
sketch24.addConstraint(Sketcher.Constraint("Vertical", 4))
sketch24.addConstraint(Sketcher.Constraint("Coincident", 4, 1, 3, 2))
sketch24.addConstraint(Sketcher.Constraint("PointOnObject", 0, 2, -1))
sketch24.addConstraint(Sketcher.Constraint("PointOnObject", 4, 2, -1))
sketch24.addConstraint(Sketcher.Constraint("DistanceY", 0, 1, 0, 2, Q("0.9 mm")))
sketch24.addConstraint(Sketcher.Constraint("DistanceX", 1, 1, 1, 2, Q("1.95 mm")))
sketch24.addConstraint(Sketcher.Constraint("DistanceX", -1, 1, 0, 2, Q("8.014428 mm")))
revolution6 = body.newObject("PartDesign::Revolution", "Revolution005")
revolution6.Profile = sketch24
revolution6.ReferenceAxis = (sketch24, ["Axis0"])
revolution6.Angle = 360

sketch25 = body.newObject("Sketcher::SketchObject", "Sketch024")
sketch25.AttachmentSupport = (doc.getObject("XZ_Plane"), [""])
sketch25.MapMode = "FlatFace"
sketch25.AttachmentOffset = App.Placement(App.Vector(0, 0, -50), App.Rotation())
sketch25.addGeometry(Part.LineSegment(App.Vector(27.5, -0.9, 0), App.Vector(27.5, 0, 0)), False)
sketch25.addGeometry(Part.LineSegment(App.Vector(27.5, 0, 0), App.Vector(29.4, 0, 0)), False)
sketch25.addGeometry(Part.LineSegment(App.Vector(29.4, 0, 0), App.Vector(29.4, -0.9, 0)), False)
sketch25.addGeometry(Part.LineSegment(App.Vector(29.4, -0.9, 0), App.Vector(27.5, -0.9, 0)), False)
sketch25.addGeometry(Part.LineSegment(App.Vector(27.5, -0.9, 0), App.Vector(27.5, 0, 0)), True)
sketch25.addConstraint(Sketcher.Constraint("Coincident", 0, 2, 1, 1))
sketch25.addConstraint(Sketcher.Constraint("Coincident", 1, 2, 2, 1))
sketch25.addConstraint(Sketcher.Constraint("Coincident", 2, 2, 3, 1))
sketch25.addConstraint(Sketcher.Constraint("Coincident", 3, 2, 0, 1))
sketch25.addConstraint(Sketcher.Constraint("Vertical", 0))
sketch25.addConstraint(Sketcher.Constraint("Horizontal", 1))
sketch25.addConstraint(Sketcher.Constraint("Vertical", 2))
sketch25.addConstraint(Sketcher.Constraint("Horizontal", 3))
sketch25.addConstraint(Sketcher.Constraint("Vertical", 4))
sketch25.addConstraint(Sketcher.Constraint("Coincident", 4, 1, 3, 2))
sketch25.addConstraint(Sketcher.Constraint("PointOnObject", 0, 2, -1))
sketch25.addConstraint(Sketcher.Constraint("PointOnObject", 4, 2, -1))
sketch25.addConstraint(Sketcher.Constraint("DistanceY", 0, 1, 0, 2, Q("0.9 mm")))
sketch25.addConstraint(Sketcher.Constraint("DistanceX", 1, 1, 1, 2, Q("1.95 mm")))
sketch25.addConstraint(Sketcher.Constraint("DistanceX", -1, 1, 0, 2, Q("27.5 mm")))
revolution7 = body.newObject("PartDesign::Revolution", "Revolution006")
revolution7.Profile = sketch25
revolution7.ReferenceAxis = (sketch25, ["Axis0"])
revolution7.Angle = 360

sketch26 = body.newObject("Sketcher::SketchObject", "Sketch025")
sketch26.AttachmentSupport = (doc.getObject("XZ_Plane"), [""])
sketch26.MapMode = "FlatFace"
sketch26.AttachmentOffset = App.Placement(App.Vector(0, 0, -38.75), App.Rotation())
sketch26.addGeometry(Part.LineSegment(App.Vector(47, -0.9, 0), App.Vector(47, 0, 0)), False)
sketch26.addGeometry(Part.LineSegment(App.Vector(47, 0, 0), App.Vector(48.9, 0, 0)), False)
sketch26.addGeometry(Part.LineSegment(App.Vector(48.9, 0, 0), App.Vector(48.9, -0.9, 0)), False)
sketch26.addGeometry(Part.LineSegment(App.Vector(48.9, -0.9, 0), App.Vector(47, -0.9, 0)), False)
sketch26.addGeometry(Part.LineSegment(App.Vector(47, -0.9, 0), App.Vector(47, 0, 0)), True)
sketch26.addConstraint(Sketcher.Constraint("Coincident", 0, 2, 1, 1))
sketch26.addConstraint(Sketcher.Constraint("Coincident", 1, 2, 2, 1))
sketch26.addConstraint(Sketcher.Constraint("Coincident", 2, 2, 3, 1))
sketch26.addConstraint(Sketcher.Constraint("Coincident", 3, 2, 0, 1))
sketch26.addConstraint(Sketcher.Constraint("Vertical", 0))
sketch26.addConstraint(Sketcher.Constraint("Horizontal", 1))
sketch26.addConstraint(Sketcher.Constraint("Vertical", 2))
sketch26.addConstraint(Sketcher.Constraint("Horizontal", 3))
sketch26.addConstraint(Sketcher.Constraint("Vertical", 4))
sketch26.addConstraint(Sketcher.Constraint("Coincident", 4, 1, 3, 2))
sketch26.addConstraint(Sketcher.Constraint("PointOnObject", 0, 2, -1))
sketch26.addConstraint(Sketcher.Constraint("PointOnObject", 4, 2, -1))
sketch26.addConstraint(Sketcher.Constraint("DistanceY", 0, 1, 0, 2, Q("0.9 mm")))
sketch26.addConstraint(Sketcher.Constraint("DistanceX", 1, 1, 1, 2, Q("1.95 mm")))
sketch26.addConstraint(Sketcher.Constraint("DistanceX", -1, 1, 0, 2, Q("46.985572 mm")))
revolution8 = body.newObject("PartDesign::Revolution", "Revolution007")
revolution8.Profile = sketch26
revolution8.ReferenceAxis = (sketch26, ["Axis0"])
revolution8.Angle = 360

doc.recompute()
